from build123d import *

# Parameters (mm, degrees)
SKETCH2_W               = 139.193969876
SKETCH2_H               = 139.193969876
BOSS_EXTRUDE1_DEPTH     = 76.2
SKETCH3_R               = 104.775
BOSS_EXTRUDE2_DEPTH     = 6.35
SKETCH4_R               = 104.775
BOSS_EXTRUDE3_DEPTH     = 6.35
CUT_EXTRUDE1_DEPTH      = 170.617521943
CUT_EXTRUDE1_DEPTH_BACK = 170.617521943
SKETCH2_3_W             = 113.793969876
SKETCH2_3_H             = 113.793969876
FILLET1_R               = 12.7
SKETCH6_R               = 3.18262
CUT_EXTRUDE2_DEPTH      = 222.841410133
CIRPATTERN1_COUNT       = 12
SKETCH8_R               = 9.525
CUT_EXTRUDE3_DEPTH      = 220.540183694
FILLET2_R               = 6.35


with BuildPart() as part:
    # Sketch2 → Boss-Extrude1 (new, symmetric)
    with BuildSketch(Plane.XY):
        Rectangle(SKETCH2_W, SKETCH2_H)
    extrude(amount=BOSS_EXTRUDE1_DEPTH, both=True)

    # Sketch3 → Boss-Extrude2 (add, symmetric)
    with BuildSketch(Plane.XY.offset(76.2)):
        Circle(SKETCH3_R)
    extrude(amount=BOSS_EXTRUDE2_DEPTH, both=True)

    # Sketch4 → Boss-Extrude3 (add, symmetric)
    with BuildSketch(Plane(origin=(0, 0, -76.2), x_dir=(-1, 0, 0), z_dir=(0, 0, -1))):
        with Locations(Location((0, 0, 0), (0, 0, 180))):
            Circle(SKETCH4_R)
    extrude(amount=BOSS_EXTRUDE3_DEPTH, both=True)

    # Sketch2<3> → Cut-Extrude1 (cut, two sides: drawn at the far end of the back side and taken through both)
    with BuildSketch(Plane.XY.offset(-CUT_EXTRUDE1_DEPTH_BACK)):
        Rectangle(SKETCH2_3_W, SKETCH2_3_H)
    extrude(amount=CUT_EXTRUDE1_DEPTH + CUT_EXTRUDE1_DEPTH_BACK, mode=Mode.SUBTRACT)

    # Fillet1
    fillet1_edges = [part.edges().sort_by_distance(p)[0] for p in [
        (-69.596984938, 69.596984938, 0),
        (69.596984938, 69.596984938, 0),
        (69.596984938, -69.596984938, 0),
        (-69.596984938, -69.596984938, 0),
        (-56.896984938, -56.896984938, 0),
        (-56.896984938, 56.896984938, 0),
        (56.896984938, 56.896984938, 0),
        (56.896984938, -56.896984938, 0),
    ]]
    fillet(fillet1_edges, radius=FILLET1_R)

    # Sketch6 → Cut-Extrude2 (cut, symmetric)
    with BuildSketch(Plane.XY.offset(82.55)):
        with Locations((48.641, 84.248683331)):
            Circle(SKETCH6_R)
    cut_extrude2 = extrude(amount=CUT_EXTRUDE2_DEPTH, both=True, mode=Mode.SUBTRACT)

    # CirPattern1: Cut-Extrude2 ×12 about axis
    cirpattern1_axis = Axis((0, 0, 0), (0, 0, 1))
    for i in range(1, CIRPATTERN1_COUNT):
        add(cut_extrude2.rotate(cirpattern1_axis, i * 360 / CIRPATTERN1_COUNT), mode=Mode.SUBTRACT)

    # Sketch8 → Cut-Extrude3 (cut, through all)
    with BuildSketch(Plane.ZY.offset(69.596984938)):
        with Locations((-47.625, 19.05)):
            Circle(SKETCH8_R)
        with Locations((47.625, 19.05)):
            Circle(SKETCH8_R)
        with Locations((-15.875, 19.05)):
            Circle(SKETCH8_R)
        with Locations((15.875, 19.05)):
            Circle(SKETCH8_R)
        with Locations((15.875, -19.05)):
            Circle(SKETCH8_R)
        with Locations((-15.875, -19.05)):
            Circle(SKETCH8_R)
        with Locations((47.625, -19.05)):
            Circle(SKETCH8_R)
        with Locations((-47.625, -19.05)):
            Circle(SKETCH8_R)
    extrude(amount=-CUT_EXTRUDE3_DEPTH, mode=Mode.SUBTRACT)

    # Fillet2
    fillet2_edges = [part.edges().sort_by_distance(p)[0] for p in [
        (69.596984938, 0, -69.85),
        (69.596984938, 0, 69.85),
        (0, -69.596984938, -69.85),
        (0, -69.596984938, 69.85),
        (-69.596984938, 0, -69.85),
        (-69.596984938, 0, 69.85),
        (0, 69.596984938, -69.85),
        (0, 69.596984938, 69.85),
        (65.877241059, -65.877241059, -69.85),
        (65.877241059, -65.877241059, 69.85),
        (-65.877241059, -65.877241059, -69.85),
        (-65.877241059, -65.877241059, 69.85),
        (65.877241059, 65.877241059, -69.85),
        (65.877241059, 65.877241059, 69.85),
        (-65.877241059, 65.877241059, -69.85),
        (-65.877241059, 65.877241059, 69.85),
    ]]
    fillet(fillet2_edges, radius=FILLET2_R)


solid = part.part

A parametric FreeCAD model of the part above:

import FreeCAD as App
import Part
import Sketcher
Q = App.Units.Quantity


def edges_at(feature, points):
    """Names of the edges that pass closest to the given points."""
    edges = feature.Shape.Edges
    near = lambda p: min(range(len(edges)), key=lambda i: edges[i].distToShape(Part.Vertex(*p))[0])
    return sorted({f"Edge{near(p) + 1}" for p in points})


def add_polygon(sketch, points):
    """Adds a closed chain of lines whose ends are joined by coincident constraints."""
    first, n = sketch.GeometryCount, len(points)
    for a, b in zip(points, points[1:] + points[:1]):
        sketch.addGeometry(Part.LineSegment(App.Vector(*a, 0), App.Vector(*b, 0)), False)
    for i in range(n):
        sketch.addConstraint(Sketcher.Constraint("Coincident", first + i, 2, first + (i + 1) % n, 1))

doc = App.newDocument("Part")
body = doc.addObject("PartDesign::Body", "Body")

# Sketch on XY plane
sketch1 = body.newObject("Sketcher::SketchObject", "Sketch")
sketch1.AttachmentSupport = (doc.getObject("XY_Plane"), [""])
sketch1.MapMode = "FlatFace"
add_polygon(sketch1, [(-70, 70), (-70, -70), (70, -70), (70, 70)])  # lines 0-3
sketch1.addConstraint(Sketcher.Constraint("Vertical", 0))
sketch1.addConstraint(Sketcher.Constraint("Horizontal", 1))
sketch1.addConstraint(Sketcher.Constraint("Vertical", 2))
sketch1.addConstraint(Sketcher.Constraint("Horizontal", 3))
sketch1.addConstraint(Sketcher.Constraint("Symmetric", 0, 2, 2, 2, -1, 1))
sketch1.addConstraint(Sketcher.Constraint("Equal", 3, 0))
sketch1.addConstraint(Sketcher.Constraint("DistanceX", 1, 1, 1, 2, Q("139.19397 mm")))
pad1 = body.newObject("PartDesign::Pad", "Pad")
pad1.Profile = sketch1
pad1.Length = Q("6 in")
pad1.Midplane = True

# Sketch on XY plane
sketch2 = body.newObject("Sketcher::SketchObject", "Sketch001")
sketch2.AttachmentSupport = (doc.getObject("XY_Plane"), [""])
sketch2.MapMode = "FlatFace"
sketch2.AttachmentOffset = App.Placement(App.Vector(0, 0, 3 * 25.4), App.Rotation())
sketch2.addGeometry(Part.Circle(App.Vector(0, 0, 0), App.Vector(0, 0, 1), 105), False)
sketch2.addConstraint(Sketcher.Constraint("Coincident", 0, 3, -1, 1))
sketch2.addConstraint(Sketcher.Constraint("Diameter", 0, Q("8.25 in")))
pad2 = body.newObject("PartDesign::Pad", "Pad001")
pad2.Profile = sketch2
pad2.Length = Q("0.5 in")
pad2.Midplane = True

# Sketch on XY plane
sketch3 = body.newObject("Sketcher::SketchObject", "Sketch002")
sketch3.AttachmentSupport = (doc.getObject("XY_Plane"), [""])
sketch3.MapMode = "FlatFace"
sketch3.AttachmentOffset = App.Placement(App.Vector(0, 0, -3 * 25.4), App.Rotation())
sketch3.addGeometry(Part.Circle(App.Vector(0, 0, 0), App.Vector(0, 0, 1), 105), False)
sketch3.addConstraint(Sketcher.Constraint("Coincident", 0, 3, -1, 1))
sketch3.addConstraint(Sketcher.Constraint("Diameter", 0, Q("8.25 in")))
pad3 = body.newObject("PartDesign::Pad", "Pad002")
pad3.Profile = sketch3
pad3.Length = Q("0.5 in")
pad3.Midplane = True

# Sketch on XY plane
sketch4 = body.newObject("Sketcher::SketchObject", "Sketch003")
sketch4.AttachmentSupport = (doc.getObject("XY_Plane"), [""])
sketch4.MapMode = "FlatFace"
add_polygon(sketch4, [(-57, 57), (-57, -57), (57, -57), (57, 57)])  # lines 0-3
sketch4.addConstraint(Sketcher.Constraint("Vertical", 0))
sketch4.addConstraint(Sketcher.Constraint("Horizontal", 1))
sketch4.addConstraint(Sketcher.Constraint("Vertical", 2))
sketch4.addConstraint(Sketcher.Constraint("Horizontal", 3))
sketch4.addConstraint(Sketcher.Constraint("Symmetric", 0, 2, 2, 2, -1, 1))
sketch4.addConstraint(Sketcher.Constraint("Equal", 3, 0))
sketch4.addConstraint(Sketcher.Constraint("DistanceX", 1, 1, 1, 2, Q("113.79397 mm")))
pocket1 = body.newObject("PartDesign::Pocket", "Pocket")
pocket1.Profile = sketch4
pocket1.Type = "ThroughAll"
pocket1.Midplane = True
doc.recompute()

fillet = body.newObject("PartDesign::Fillet", "Fillet")
fillet.Base = (pocket1, edges_at(pocket1, [
    (-69.597, 69.597, 0),
    (69.597, 69.597, 0),
    (69.597, -69.597, 0),
    (-69.597, -69.597, 0),
    (-56.897, -56.897, 0),
    (-56.897, 56.897, 0),
    (56.897, 56.897, 0),
    (56.897, -56.897, 0),
]))
fillet.Radius = Q("0.5 in")

# Sketch on XY plane
sketch5 = body.newObject("Sketcher::SketchObject", "Sketch004")
sketch5.AttachmentSupport = (doc.getObject("XY_Plane"), [""])
sketch5.MapMode = "FlatFace"
sketch5.AttachmentOffset = App.Placement(App.Vector(0, 0, 3.25 * 25.4), App.Rotation())
sketch5.addGeometry(Part.Circle(App.Vector(48.6, 84.2, 0), App.Vector(0, 0, 1), 3.2), False)
sketch5.addConstraint(Sketcher.Constraint("Diameter", 0, Q("0.2506 in")))
sketch5.addConstraint(Sketcher.Constraint("DistanceX", -1, 1, 0, 3, Q("1.915 in")))
sketch5.addConstraint(Sketcher.Constraint("DistanceY", -1, 1, 0, 3, Q("84.248683 mm")))
pocket2 = body.newObject("PartDesign::Pocket", "Pocket001")
pocket2.Profile = sketch5
pocket2.Length = 445.68282
pocket2.Midplane = True
doc.recompute()

polarpattern = body.newObject("PartDesign::PolarPattern", "PolarPattern")
polarpattern.Originals = [pocket2]
polarpattern.Axis = (doc.getObject("Z_Axis"), [""])
polarpattern.Angle = 360
polarpattern.Occurrences = 12
body.Tip = polarpattern

# Sketch on YZ plane
sketch6 = body.newObject("Sketcher::SketchObject", "Sketch005")
sketch6.AttachmentSupport = (doc.getObject("YZ_Plane"), [""])
sketch6.MapMode = "FlatFace"
sketch6.AttachmentOffset = App.Placement(App.Vector(0, 0, -69.596985), App.Rotation())
sketch6.addGeometry(Part.Circle(App.Vector(19, -48, 0), App.Vector(0, 0, 1), 10), False)
sketch6.addGeometry(Part.Circle(App.Vector(19, 48, 0), App.Vector(0, 0, 1), 10), False)
sketch6.addGeometry(Part.Circle(App.Vector(19, -16, 0), App.Vector(0, 0, 1), 10), False)
sketch6.addGeometry(Part.Circle(App.Vector(19, 16, 0), App.Vector(0, 0, 1), 10), False)
sketch6.addGeometry(Part.Circle(App.Vector(-19, 16, 0), App.Vector(0, 0, 1), 10), False)
sketch6.addGeometry(Part.Circle(App.Vector(-19, -16, 0), App.Vector(0, 0, 1), 10), False)
sketch6.addGeometry(Part.Circle(App.Vector(-19, 48, 0), App.Vector(0, 0, 1), 10), False)
sketch6.addGeometry(Part.Circle(App.Vector(-19, -48, 0), App.Vector(0, 0, 1), 10), False)
sketch6.addConstraint(Sketcher.Constraint("Equal", 0, 1))
sketch6.addConstraint(Sketcher.Constraint("Equal", 1, 2))
sketch6.addConstraint(Sketcher.Constraint("Equal", 2, 3))
sketch6.addConstraint(Sketcher.Constraint("Equal", 3, 4))
sketch6.addConstraint(Sketcher.Constraint("Equal", 4, 5))
sketch6.addConstraint(Sketcher.Constraint("Equal", 5, 6))
sketch6.addConstraint(Sketcher.Constraint("Equal", 6, 7))
sketch6.addConstraint(Sketcher.Constraint("Symmetric", 2, 3, 4, 3, -1, 1))
sketch6.addConstraint(Sketcher.Constraint("Symmetric", 3, 3, 5, 3, -1, 1))
sketch6.addConstraint(Sketcher.Constraint("Symmetric", 0, 3, 6, 3, -1, 1))
sketch6.addConstraint(Sketcher.Constraint("Symmetric", 1, 3, 7, 3, -1, 1))
sketch6.addConstraint(Sketcher.Constraint("Symmetric", 3, 3, 4, 3, -2))
sketch6.addConstraint(Sketcher.Constraint("Symmetric", 1, 3, 6, 3, -2))
sketch6.addConstraint(Sketcher.Constraint("Vertical", 1, 3, 2, 3))
sketch6.addConstraint(Sketcher.Constraint("Diameter", 0, Q("0.75 in")))
sketch6.addConstraint(Sketcher.Constraint("DistanceY", 2, 3, 1, 3, Q("2.5 in")))
sketch6.addConstraint(Sketcher.Constraint("DistanceX", 4, 3, 3, 3, Q("1.5 in")))
sketch6.addConstraint(Sketcher.Constraint("DistanceY", 0, 3, 1, 3, Q("3.75 in")))
pocket3 = body.newObject("PartDesign::Pocket", "Pocket002")
pocket3.Profile = sketch6
pocket3.Type = "ThroughAll"
pocket3.Reversed = True
doc.recompute()

fillet2 = body.newObject("PartDesign::Fillet", "Fillet001")
fillet2.Base = (pocket3, edges_at(pocket3, [
    (69.597, 0, -69.85),
    (69.597, 0, 69.85),
    (0, -69.597, -69.85),
    (0, -69.597, 69.85),
    (-69.597, 0, -69.85),
    (-69.597, 0, 69.85),
    (0, 69.597, -69.85),
    (0, 69.597, 69.85),
    (65.877, -65.877, -69.85),
    (65.877, -65.877, 69.85),
    (-65.877, -65.877, -69.85),
    (-65.877, -65.877, 69.85),
    (65.877, 65.877, -69.85),
    (65.877, 65.877, 69.85),
    (-65.877, 65.877, -69.85),
    (-65.877, 65.877, 69.85),
]))
fillet2.Radius = Q("0.25 in")

doc.recompute()
